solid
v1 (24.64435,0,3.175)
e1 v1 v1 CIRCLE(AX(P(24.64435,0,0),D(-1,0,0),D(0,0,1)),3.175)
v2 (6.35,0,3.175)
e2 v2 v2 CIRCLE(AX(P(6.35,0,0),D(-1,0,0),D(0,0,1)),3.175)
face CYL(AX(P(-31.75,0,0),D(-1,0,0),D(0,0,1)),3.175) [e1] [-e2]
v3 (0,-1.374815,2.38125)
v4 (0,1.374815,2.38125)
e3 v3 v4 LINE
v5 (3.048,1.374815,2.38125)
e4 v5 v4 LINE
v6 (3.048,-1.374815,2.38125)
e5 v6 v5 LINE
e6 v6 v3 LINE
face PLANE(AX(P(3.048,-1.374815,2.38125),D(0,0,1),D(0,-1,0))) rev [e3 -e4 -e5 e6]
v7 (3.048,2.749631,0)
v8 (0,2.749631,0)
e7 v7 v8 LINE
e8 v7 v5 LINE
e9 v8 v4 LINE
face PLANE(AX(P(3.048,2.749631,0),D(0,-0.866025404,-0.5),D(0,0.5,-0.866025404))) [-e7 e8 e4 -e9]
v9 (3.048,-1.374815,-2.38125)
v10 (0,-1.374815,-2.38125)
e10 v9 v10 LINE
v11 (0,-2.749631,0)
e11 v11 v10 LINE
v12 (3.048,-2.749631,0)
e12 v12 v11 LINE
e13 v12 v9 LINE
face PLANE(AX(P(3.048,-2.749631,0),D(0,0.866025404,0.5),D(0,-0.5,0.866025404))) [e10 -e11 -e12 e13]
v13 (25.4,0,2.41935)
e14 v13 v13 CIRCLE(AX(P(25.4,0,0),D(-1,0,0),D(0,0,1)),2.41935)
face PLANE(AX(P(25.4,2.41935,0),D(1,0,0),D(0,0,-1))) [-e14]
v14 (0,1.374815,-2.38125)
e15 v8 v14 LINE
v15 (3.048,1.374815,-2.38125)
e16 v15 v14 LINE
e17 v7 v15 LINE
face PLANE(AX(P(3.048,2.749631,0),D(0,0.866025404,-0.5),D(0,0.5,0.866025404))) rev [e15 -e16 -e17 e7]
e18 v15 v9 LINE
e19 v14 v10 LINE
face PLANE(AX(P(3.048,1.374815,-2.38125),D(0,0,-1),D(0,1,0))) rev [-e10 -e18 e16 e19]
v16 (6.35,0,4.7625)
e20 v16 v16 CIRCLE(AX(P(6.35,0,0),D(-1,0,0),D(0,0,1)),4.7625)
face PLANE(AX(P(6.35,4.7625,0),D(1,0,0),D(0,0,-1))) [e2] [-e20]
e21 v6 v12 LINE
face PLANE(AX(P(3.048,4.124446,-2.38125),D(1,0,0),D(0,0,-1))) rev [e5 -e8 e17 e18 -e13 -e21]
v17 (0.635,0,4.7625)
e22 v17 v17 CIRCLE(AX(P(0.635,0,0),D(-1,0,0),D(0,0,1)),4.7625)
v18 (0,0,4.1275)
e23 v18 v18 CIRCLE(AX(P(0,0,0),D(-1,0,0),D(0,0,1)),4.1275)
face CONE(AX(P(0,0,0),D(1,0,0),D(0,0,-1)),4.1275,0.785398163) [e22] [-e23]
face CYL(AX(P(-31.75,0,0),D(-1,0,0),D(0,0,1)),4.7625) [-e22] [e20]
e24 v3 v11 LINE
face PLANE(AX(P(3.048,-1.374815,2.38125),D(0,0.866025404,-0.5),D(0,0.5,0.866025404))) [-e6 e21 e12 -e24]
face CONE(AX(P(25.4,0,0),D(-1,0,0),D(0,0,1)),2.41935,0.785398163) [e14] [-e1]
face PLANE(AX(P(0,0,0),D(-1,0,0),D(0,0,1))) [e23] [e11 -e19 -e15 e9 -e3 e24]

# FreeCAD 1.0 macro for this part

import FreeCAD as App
import Part
import Sketcher

V = App.Vector
Q = App.Units.Quantity

doc = App.newDocument("Part")
body = doc.addObject("PartDesign::Body", "Body")

# Sketch on XY plane
sketch1 = body.newObject("Sketcher::SketchObject", "Sketch")
sketch1.AttachmentSupport = (doc.getObject("XY_Plane"), [""])
sketch1.MapMode = "FlatFace"
sketch1.addGeometry(Part.LineSegment(V(0, 4.1, 0), V(0, 0, 0)), False)
sketch1.addGeometry(Part.LineSegment(V(0, 0, 0), V(25.4, 0, 0)), False)
sketch1.addGeometry(Part.LineSegment(V(25.4, 0, 0), V(25.4, 2.4, 0)), False)
sketch1.addGeometry(Part.LineSegment(V(25.4, 2.4, 0), V(24.6, 3.2, 0)), False)
sketch1.addGeometry(Part.LineSegment(V(24.6, 3.2, 0), V(6.3, 3.2, 0)), False)
sketch1.addGeometry(Part.LineSegment(V(6.3, 3.2, 0), V(6.3, 4.8, 0)), False)
sketch1.addGeometry(Part.LineSegment(V(6.3, 4.8, 0), V(0.6, 4.8, 0)), False)
sketch1.addGeometry(Part.LineSegment(V(0.6, 4.8, 0), V(0, 4.1, 0)), False)
sketch1.addConstraint(Sketcher.Constraint("Coincident", 0, 2, 1, 1))
sketch1.addConstraint(Sketcher.Constraint("Coincident", 1, 2, 2, 1))
sketch1.addConstraint(Sketcher.Constraint("Coincident", 2, 2, 3, 1))
sketch1.addConstraint(Sketcher.Constraint("Coincident", 3, 2, 4, 1))
sketch1.addConstraint(Sketcher.Constraint("Coincident", 4, 2, 5, 1))
sketch1.addConstraint(Sketcher.Constraint("Coincident", 5, 2, 6, 1))
sketch1.addConstraint(Sketcher.Constraint("Coincident", 6, 2, 7, 1))
sketch1.addConstraint(Sketcher.Constraint("Coincident", 7, 2, 0, 1))
sketch1.addConstraint(Sketcher.Constraint("Vertical", 0))
sketch1.addConstraint(Sketcher.Constraint("Horizontal", 1))
sketch1.addConstraint(Sketcher.Constraint("Vertical", 2))
sketch1.addConstraint(Sketcher.Constraint("Horizontal", 4))
sketch1.addConstraint(Sketcher.Constraint("Vertical", 5))
sketch1.addConstraint(Sketcher.Constraint("Horizontal", 6))
sketch1.addConstraint(Sketcher.Constraint("Coincident", 0, 2, -1, 1))
sketch1.addConstraint(Sketcher.Constraint("Perpendicular", 3, 7))
sketch1.addConstraint(Sketcher.Constraint("DistanceX", 1, 1, 1, 2, Q("1 in")))
sketch1.addConstraint(Sketcher.Constraint("Angle", 3, Q("135 deg")))
sketch1.addConstraint(Sketcher.Constraint("DistanceX", 6, 2, 6, 1, Q("0.225 in")))
sketch1.addConstraint(Sketcher.Constraint("DistanceY", 5, 1, 5, 2, Q("0.0625 in")))
sketch1.addConstraint(Sketcher.Constraint("DistanceX", -1, 1, 4, 2, Q("0.25 in")))
sketch1.addConstraint(Sketcher.Constraint("DistanceY", 0, 2, 0, 1, Q("0.1625 in")))
sketch1.addConstraint(Sketcher.Constraint("DistanceX", 4, 2, 4, 1, 18.29435))
revolution = body.newObject("PartDesign::Revolution", "Revolution")
revolution.Profile = sketch1
revolution.ReferenceAxis = (sketch1, ["H_Axis"])
revolution.Angle = 360

# Sketch on YZ plane
sketch2 = body.newObject("Sketcher::SketchObject", "Sketch001")
sketch2.AttachmentSupport = (doc.getObject("YZ_Plane"), [""])
sketch2.MapMode = "FlatFace"
sketch2.addGeometry(Part.LineSegment(V(2.7, 0, 0), V(1.4, -2.4, 0)), False)
sketch2.addGeometry(Part.LineSegment(V(1.4, -2.4, 0), V(-1.4, -2.4, 0)), False)
sketch2.addGeometry(Part.LineSegment(V(-1.4, -2.4, 0), V(-2.7, 0, 0)), False)
sketch2.addGeometry(Part.LineSegment(V(-2.7, 0, 0), V(-1.4, 2.4, 0)), False)
sketch2.addGeometry(Part.LineSegment(V(-1.4, 2.4, 0), V(1.4, 2.4, 0)), False)
sketch2.addGeometry(Part.LineSegment(V(1.4, 2.4, 0), V(2.7, 0, 0)), False)
sketch2.addConstraint(Sketcher.Constraint("Coincident", 0, 2, 1, 1))
sketch2.addConstraint(Sketcher.Constraint("Coincident", 1, 2, 2, 1))
sketch2.addConstraint(Sketcher.Constraint("Coincident", 2, 2, 3, 1))
sketch2.addConstraint(Sketcher.Constraint("Coincident", 3, 2, 4, 1))
sketch2.addConstraint(Sketcher.Constraint("Coincident", 4, 2, 5, 1))
sketch2.addConstraint(Sketcher.Constraint("Coincident", 5, 2, 0, 1))
sketch2.addConstraint(Sketcher.Constraint("Horizontal", 1))
sketch2.addConstraint(Sketcher.Constraint("Horizontal", 4))
sketch2.addConstraint(Sketcher.Constraint("Symmetric", 0, 2, 3, 2, -1, 1))
sketch2.addConstraint(Sketcher.Constraint("Symmetric", 2, 2, 5, 2, -1, 1))
sketch2.addConstraint(Sketcher.Constraint("PointOnObject", 2, 2, -1))
sketch2.addConstraint(Sketcher.Constraint("Parallel", 2, 5))
sketch2.addConstraint(Sketcher.Constraint("Vertical", 1, 2, 3, 2))
sketch2.addConstraint(Sketcher.Constraint("Angle", 0, Q("-120 deg")))
sketch2.addConstraint(Sketcher.Constraint("DistanceY", 0, 2, -1, 1, Q("0.09375 in")))
sketch2.addConstraint(Sketcher.Constraint("DistanceX", 1, 2, 1, 1, 2.749631))
pocket1 = body.newObject("PartDesign::Pocket", "Pocket")
pocket1.Profile = sketch2
pocket1.Length = Q("0.12 in")
pocket1.Reversed = True

doc.recompute()
